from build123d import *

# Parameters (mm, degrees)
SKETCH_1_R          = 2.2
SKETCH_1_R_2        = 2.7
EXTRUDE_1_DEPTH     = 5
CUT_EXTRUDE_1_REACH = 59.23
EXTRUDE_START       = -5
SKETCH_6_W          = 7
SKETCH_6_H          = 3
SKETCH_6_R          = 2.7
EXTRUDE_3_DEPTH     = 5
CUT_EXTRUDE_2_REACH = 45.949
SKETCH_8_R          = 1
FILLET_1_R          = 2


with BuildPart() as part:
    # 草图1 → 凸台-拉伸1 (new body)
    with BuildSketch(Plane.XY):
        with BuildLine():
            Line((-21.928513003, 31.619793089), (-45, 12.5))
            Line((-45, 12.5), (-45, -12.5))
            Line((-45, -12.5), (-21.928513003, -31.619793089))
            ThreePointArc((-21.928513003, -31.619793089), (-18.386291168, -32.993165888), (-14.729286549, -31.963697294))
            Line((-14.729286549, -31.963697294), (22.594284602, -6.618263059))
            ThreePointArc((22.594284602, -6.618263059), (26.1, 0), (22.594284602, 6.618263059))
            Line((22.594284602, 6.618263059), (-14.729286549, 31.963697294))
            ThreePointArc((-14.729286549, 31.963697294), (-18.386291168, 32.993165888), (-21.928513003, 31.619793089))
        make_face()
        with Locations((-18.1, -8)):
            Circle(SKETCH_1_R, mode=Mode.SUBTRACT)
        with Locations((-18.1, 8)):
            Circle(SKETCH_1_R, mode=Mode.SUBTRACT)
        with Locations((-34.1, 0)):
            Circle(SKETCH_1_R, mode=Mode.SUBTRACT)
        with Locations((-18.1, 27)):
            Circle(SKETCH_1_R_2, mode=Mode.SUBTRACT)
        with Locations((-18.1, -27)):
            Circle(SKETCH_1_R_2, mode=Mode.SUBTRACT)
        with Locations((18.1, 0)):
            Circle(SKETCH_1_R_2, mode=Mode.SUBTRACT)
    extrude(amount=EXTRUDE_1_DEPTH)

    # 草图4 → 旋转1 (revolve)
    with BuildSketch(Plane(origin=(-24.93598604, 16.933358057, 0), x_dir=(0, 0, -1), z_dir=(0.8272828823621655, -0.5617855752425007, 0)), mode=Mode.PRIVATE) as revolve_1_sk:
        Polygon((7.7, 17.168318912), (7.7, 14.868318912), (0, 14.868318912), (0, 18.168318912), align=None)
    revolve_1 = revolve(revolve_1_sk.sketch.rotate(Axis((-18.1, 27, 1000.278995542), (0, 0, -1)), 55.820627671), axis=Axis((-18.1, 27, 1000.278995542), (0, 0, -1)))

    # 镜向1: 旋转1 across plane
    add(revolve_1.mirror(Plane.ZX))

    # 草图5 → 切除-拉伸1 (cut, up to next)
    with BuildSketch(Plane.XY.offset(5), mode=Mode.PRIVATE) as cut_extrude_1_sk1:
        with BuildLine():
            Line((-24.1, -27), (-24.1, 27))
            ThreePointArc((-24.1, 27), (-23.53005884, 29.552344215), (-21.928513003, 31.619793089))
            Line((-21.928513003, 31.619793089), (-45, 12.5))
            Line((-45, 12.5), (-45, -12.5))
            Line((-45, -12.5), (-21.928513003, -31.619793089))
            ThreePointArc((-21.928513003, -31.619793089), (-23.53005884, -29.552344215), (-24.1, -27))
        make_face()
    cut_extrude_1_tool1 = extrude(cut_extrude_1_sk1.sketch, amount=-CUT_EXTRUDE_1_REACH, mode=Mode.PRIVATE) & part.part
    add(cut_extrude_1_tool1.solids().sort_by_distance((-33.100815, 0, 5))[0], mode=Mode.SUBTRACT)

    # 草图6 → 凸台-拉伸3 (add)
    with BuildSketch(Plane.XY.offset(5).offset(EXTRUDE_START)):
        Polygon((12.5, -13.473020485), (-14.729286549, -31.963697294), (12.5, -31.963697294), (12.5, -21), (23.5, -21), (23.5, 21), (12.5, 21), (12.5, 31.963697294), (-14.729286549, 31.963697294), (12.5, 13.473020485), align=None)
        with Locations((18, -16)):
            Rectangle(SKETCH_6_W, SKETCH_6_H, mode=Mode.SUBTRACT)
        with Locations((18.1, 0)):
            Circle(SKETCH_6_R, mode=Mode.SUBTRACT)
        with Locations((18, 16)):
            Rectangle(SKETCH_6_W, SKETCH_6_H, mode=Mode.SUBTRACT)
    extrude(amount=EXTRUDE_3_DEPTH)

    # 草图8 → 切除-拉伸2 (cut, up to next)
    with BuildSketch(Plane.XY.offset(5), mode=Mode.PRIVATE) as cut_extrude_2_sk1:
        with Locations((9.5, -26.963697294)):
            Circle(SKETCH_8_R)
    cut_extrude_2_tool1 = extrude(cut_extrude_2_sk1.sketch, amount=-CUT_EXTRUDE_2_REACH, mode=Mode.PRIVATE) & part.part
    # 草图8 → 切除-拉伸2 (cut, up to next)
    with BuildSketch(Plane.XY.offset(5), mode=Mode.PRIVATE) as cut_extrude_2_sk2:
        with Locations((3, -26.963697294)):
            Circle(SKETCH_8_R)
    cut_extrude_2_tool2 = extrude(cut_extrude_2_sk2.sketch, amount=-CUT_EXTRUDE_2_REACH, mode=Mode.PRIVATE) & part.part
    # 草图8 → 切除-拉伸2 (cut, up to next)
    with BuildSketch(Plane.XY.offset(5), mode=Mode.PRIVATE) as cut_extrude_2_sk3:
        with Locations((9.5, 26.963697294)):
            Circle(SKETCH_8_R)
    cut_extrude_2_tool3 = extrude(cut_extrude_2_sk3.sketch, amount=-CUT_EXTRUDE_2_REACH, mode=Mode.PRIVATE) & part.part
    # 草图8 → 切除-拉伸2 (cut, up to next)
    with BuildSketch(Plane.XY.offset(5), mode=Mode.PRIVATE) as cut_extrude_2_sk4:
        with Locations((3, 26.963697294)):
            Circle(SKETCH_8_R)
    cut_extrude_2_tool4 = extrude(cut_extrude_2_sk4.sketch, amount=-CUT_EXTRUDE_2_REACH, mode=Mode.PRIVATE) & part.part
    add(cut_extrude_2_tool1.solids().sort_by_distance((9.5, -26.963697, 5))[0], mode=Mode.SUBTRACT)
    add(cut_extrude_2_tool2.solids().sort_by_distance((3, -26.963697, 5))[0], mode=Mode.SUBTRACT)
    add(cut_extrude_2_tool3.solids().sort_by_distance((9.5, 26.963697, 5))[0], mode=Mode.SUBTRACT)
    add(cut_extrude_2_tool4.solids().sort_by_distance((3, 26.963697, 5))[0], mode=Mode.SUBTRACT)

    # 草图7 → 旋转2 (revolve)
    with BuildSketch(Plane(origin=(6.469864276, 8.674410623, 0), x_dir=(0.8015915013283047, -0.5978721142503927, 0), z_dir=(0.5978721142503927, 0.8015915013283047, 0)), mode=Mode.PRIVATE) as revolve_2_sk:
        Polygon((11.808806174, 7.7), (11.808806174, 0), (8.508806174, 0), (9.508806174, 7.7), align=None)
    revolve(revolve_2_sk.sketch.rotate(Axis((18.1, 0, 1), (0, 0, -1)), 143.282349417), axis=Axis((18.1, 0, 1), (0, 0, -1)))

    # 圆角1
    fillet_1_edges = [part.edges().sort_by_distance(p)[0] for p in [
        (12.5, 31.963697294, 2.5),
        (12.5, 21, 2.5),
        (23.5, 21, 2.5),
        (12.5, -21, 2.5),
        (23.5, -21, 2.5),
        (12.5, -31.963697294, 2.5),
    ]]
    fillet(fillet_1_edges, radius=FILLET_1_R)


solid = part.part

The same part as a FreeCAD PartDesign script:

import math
import FreeCAD as App
import Part
import Sketcher
from FreeCAD import Vector


def edges_at(feature, points):
    """Names of the edges that pass closest to the given points."""
    edges = feature.Shape.Edges
    near = lambda p: min(range(len(edges)), key=lambda i: edges[i].distToShape(Part.Vertex(*p))[0])
    return sorted({f"Edge{near(p) + 1}" for p in points})

doc = App.newDocument("Part")
body = doc.addObject("PartDesign::Body", "Body")

sketch1 = doc.addObject("Sketcher::SketchObject", "Sketch")
body.addObject(sketch1)
sketch1.AttachmentSupport = (doc.XY_Plane, [""])
sketch1.MapMode = "FlatFace"
sketch1.addGeometry([
    Part.LineSegment(Vector(-21.9, 31.6, 0), Vector(-45, 12.5, 0)),
    Part.LineSegment(Vector(-45, 12.5, 0), Vector(-45, -12.5, 0)),
    Part.LineSegment(Vector(-45, -12.5, 0), Vector(-21.9, -31.6, 0)),
    Part.ArcOfCircle(Part.Circle(Vector(-18.1, -27, 0), Vector(0, 0, 1), 6), math.radians(-130), math.radians(-56)),
    Part.LineSegment(Vector(-14.7, -32, 0), Vector(22.6, -6.6, 0)),
    Part.ArcOfCircle(Part.Circle(Vector(18.1, 0, 0), Vector(0, 0, 1), 8), math.radians(-56), math.radians(56)),
    Part.LineSegment(Vector(22.6, 6.6, 0), Vector(-14.7, 32, 0)),
    Part.ArcOfCircle(Part.Circle(Vector(-18.1, 27, 0), Vector(0, 0, 1), 6), math.radians(56), math.radians(130)),
    Part.Circle(Vector(-18.1, -27, 0), Vector(0, 0, 1), 2.7),
    Part.Circle(Vector(-18.1, -8, 0), Vector(0, 0, 1), 2.2),
    Part.Circle(Vector(-34.1, 0, 0), Vector(0, 0, 1), 2.2),
    Part.Circle(Vector(-18.1, 8, 0), Vector(0, 0, 1), 2.2),
    Part.Circle(Vector(-18.1, 27, 0), Vector(0, 0, 1), 2.7),
    Part.Circle(Vector(18.1, 0, 0), Vector(0, 0, 1), 2.7),
], False)
sketch1.addConstraint([
    Sketcher.Constraint("Coincident", 0, 2, 1, 1),
    Sketcher.Constraint("Coincident", 1, 2, 2, 1),
    Sketcher.Constraint("Tangent", 2, 2, 3, 1),
    Sketcher.Constraint("Tangent", 3, 2, 4, 1),
    Sketcher.Constraint("Tangent", 4, 2, 5, 1),
    Sketcher.Constraint("Tangent", 5, 2, 6, 1),
    Sketcher.Constraint("Tangent", 6, 2, 7, 1),
    Sketcher.Constraint("Tangent", 7, 2, 0, 1),
    Sketcher.Constraint("Vertical", 1),
    Sketcher.Constraint("Coincident", 8, 3, 3, 3),
    Sketcher.Constraint("Coincident", 12, 3, 7, 3),
    Sketcher.Constraint("Coincident", 13, 3, 5, 3),
    Sketcher.Constraint("Equal", 3, 7),
    Sketcher.Constraint("Equal", 9, 10),
    Sketcher.Constraint("Equal", 10, 11),
    Sketcher.Constraint("Equal", 8, 12),
    Sketcher.Constraint("Equal", 12, 13),
    Sketcher.Constraint("Symmetric", 3, 3, 7, 3, -1),
    Sketcher.Constraint("Symmetric", 9, 3, 11, 3, -1),
    Sketcher.Constraint("PointOnObject", 5, 3, -1),
    Sketcher.Constraint("PointOnObject", 10, 3, -1),
    Sketcher.Constraint("Vertical", 8, 3, 9, 3),
    Sketcher.Constraint("Vertical", 2, 2, 7, 2),
    Sketcher.Constraint("Radius", 3, 6.0),
    Sketcher.Constraint("Radius", 5, 8.0),
    Sketcher.Constraint("Diameter", 8, 5.4),
    Sketcher.Constraint("Diameter", 9, 4.4),
    Sketcher.Constraint("DistanceY", 1, 2, 1, 1, 25.0),
    Sketcher.Constraint("DistanceY", 3, 3, -1, 1, 27.0),
    Sketcher.Constraint("DistanceY", 9, 3, -1, 1, 8.0),
    Sketcher.Constraint("DistanceX", 0, 2, -1, 1, 45.0),
    Sketcher.Constraint("DistanceX", 10, 3, 9, 3, 16.0),
    Sketcher.Constraint("DistanceX", 3, 3, -1, 1, 18.1),
    Sketcher.Constraint("DistanceX", -1, 1, 5, 3, 18.1),
])
pad1 = doc.addObject("PartDesign::Pad", "Pad")
body.addObject(pad1)
pad1.Profile = sketch1
pad1.Length = 5

sketch2 = doc.addObject("Sketcher::SketchObject", "Sketch001")
body.addObject(sketch2)
sketch2.Placement = App.Placement(Vector(-24.935986, 16.933358, 0), App.Rotation(Vector(0, 0, -1), Vector(0.561785575, 0.827282882, 0), Vector(0.827282882, -0.561785575, 0), "ZXY"))
sketch2.addGeometry([
    Part.LineSegment(Vector(7.7, 14.9, 0), Vector(7.7, 17.2, 0)),
    Part.LineSegment(Vector(7.7, 17.2, 0), Vector(0, 18.2, 0)),
    Part.LineSegment(Vector(0, 18.2, 0), Vector(0, 14.9, 0)),
    Part.LineSegment(Vector(0, 14.9, 0), Vector(7.7, 14.9, 0)),
], False)
sketch2.addGeometry(Part.LineSegment(Vector(0, 12.2, 0), Vector(7.7, 12.2, 0)), True)
sketch2.addConstraint([
    Sketcher.Constraint("Coincident", 0, 2, 1, 1),
    Sketcher.Constraint("Coincident", 1, 2, 2, 1),
    Sketcher.Constraint("Coincident", 2, 2, 3, 1),
    Sketcher.Constraint("Coincident", 3, 2, 0, 1),
    Sketcher.Constraint("Vertical", 0),
    Sketcher.Constraint("Vertical", 2),
    Sketcher.Constraint("Horizontal", 3),
    Sketcher.Constraint("Horizontal", 4),
    Sketcher.Constraint("PointOnObject", 1, 2, -2),
    Sketcher.Constraint("PointOnObject", 4, 1, -2),
    Sketcher.Constraint("Vertical", 3, 2, 4, 2),
    Sketcher.Constraint("DistanceX", 3, 1, 3, 2, 7.7),
    Sketcher.Constraint("DistanceY", 0, 1, 0, 2, 2.3),
    Sketcher.Constraint("DistanceY", 2, 2, 2, 1, 3.3),
    Sketcher.Constraint("DistanceY", 4, 1, 1, 2, 6.0),
    Sketcher.Constraint("DistanceY", -1, 1, 0, 2, 17.168319),
])
revolution = doc.addObject("PartDesign::Revolution", "Revolution")
body.addObject(revolution)
revolution.Profile = sketch2
revolution.ReferenceAxis = (sketch2, ["Axis0"])
revolution.Angle = 360
doc.recompute()

mirrored = doc.addObject("PartDesign::Mirrored", "Mirrored")
body.addObject(mirrored)
mirrored.Originals = [revolution]
mirrored.MirrorPlane = (doc.XZ_Plane, [""])
body.Tip = mirrored

sketch3 = doc.addObject("Sketcher::SketchObject", "Sketch002")
body.addObject(sketch3)
sketch3.AttachmentSupport = (doc.XY_Plane, [""])
sketch3.MapMode = "FlatFace"
sketch3.AttachmentOffset = App.Placement(Vector(0, 0, 5), App.Rotation())
sketch3.addGeometry([
    Part.LineSegment(Vector(-24, -27, 0), Vector(-24, 27, 0)),
    Part.ArcOfCircle(Part.Circle(Vector(-18, 27, 0), Vector(0, 0, 1), 6), math.radians(130), math.radians(180)),
    Part.LineSegment(Vector(-22, 32, 0), Vector(-45, 12, 0)),
    Part.LineSegment(Vector(-45, 12, 0), Vector(-45, -12, 0)),
    Part.LineSegment(Vector(-45, -12, 0), Vector(-22, -32, 0)),
    Part.ArcOfCircle(Part.Circle(Vector(-18, -27, 0), Vector(0, 0, 1), 6), math.radians(-180), math.radians(-130)),
], False)
sketch3.addConstraint([
    Sketcher.Constraint("Tangent", 0, 2, 1, 2),
    Sketcher.Constraint("Tangent", 1, 1, 2, 1),
    Sketcher.Constraint("Coincident", 2, 2, 3, 1),
    Sketcher.Constraint("Coincident", 3, 2, 4, 1),
    Sketcher.Constraint("Tangent", 4, 2, 5, 2),
    Sketcher.Constraint("Tangent", 5, 1, 0, 1),
    Sketcher.Constraint("Vertical", 0),
    Sketcher.Constraint("Vertical", 3),
    Sketcher.Constraint("Equal", 1, 5),
    Sketcher.Constraint("Symmetric", 1, 1, 4, 2, -1),
    Sketcher.Constraint("Radius", 1, 6.0),
    Sketcher.Constraint("DistanceY", 0, 1, 0, 2, 54.0),
    Sketcher.Constraint("DistanceY", 3, 2, 3, 1, 25.0),
    Sketcher.Constraint("DistanceX", 2, 2, -1, 1, 45.0),
    Sketcher.Constraint("DistanceX", 1, 3, -1, 1, 18.1),
])
pocket1 = doc.addObject("PartDesign::Pocket", "Pocket")
body.addObject(pocket1)
pocket1.Profile = sketch3
pocket1.Length = 5

sketch4 = doc.addObject("Sketcher::SketchObject", "Sketch003")
body.addObject(sketch4)
sketch4.AttachmentSupport = (doc.XY_Plane, [""])
sketch4.MapMode = "FlatFace"
sketch4.addGeometry([
    Part.LineSegment(Vector(12.5, -13.5, 0), Vector(-14.7, -32, 0)),
    Part.LineSegment(Vector(-14.7, -32, 0), Vector(12.5, -32, 0)),
    Part.LineSegment(Vector(12.5, -32, 0), Vector(12.5, -21, 0)),
    Part.LineSegment(Vector(12.5, -21, 0), Vector(23.5, -21, 0)),
    Part.LineSegment(Vector(23.5, -21, 0), Vector(23.5, 21, 0)),
    Part.LineSegment(Vector(23.5, 21, 0), Vector(12.5, 21, 0)),
    Part.LineSegment(Vector(12.5, 21, 0), Vector(12.5, 32, 0)),
    Part.LineSegment(Vector(12.5, 32, 0), Vector(-14.7, 32, 0)),
    Part.LineSegment(Vector(-14.7, 32, 0), Vector(12.5, 13.5, 0)),
    Part.LineSegment(Vector(12.5, 13.5, 0), Vector(12.5, -13.5, 0)),
    Part.LineSegment(Vector(21.5, -17.5, 0), Vector(14.5, -17.5, 0)),
    Part.LineSegment(Vector(14.5, -17.5, 0), Vector(14.5, -14.5, 0)),
    Part.LineSegment(Vector(14.5, -14.5, 0), Vector(21.5, -14.5, 0)),
    Part.LineSegment(Vector(21.5, -14.5, 0), Vector(21.5, -17.5, 0)),
    Part.Circle(Vector(18.1, 0, 0), Vector(0, 0, 1), 2.7),
    Part.LineSegment(Vector(21.5, 14.5, 0), Vector(14.5, 14.5, 0)),
    Part.LineSegment(Vector(14.5, 14.5, 0), Vector(14.5, 17.5, 0)),
    Part.LineSegment(Vector(14.5, 17.5, 0), Vector(21.5, 17.5, 0)),
    Part.LineSegment(Vector(21.5, 17.5, 0), Vector(21.5, 14.5, 0)),
], False)
sketch4.addConstraint([
    Sketcher.Constraint("Coincident", 0, 2, 1, 1),
    Sketcher.Constraint("Coincident", 1, 2, 2, 1),
    Sketcher.Constraint("Coincident", 2, 2, 3, 1),
    Sketcher.Constraint("Coincident", 3, 2, 4, 1),
    Sketcher.Constraint("Coincident", 4, 2, 5, 1),
    Sketcher.Constraint("Coincident", 5, 2, 6, 1),
    Sketcher.Constraint("Coincident", 6, 2, 7, 1),
    Sketcher.Constraint("Coincident", 7, 2, 8, 1),
    Sketcher.Constraint("Coincident", 8, 2, 9, 1),
    Sketcher.Constraint("Coincident", 9, 2, 0, 1),
    Sketcher.Constraint("Coincident", 10, 2, 11, 1),
    Sketcher.Constraint("Coincident", 11, 2, 12, 1),
    Sketcher.Constraint("Coincident", 12, 2, 13, 1),
    Sketcher.Constraint("Coincident", 13, 2, 10, 1),
    Sketcher.Constraint("Coincident", 15, 2, 16, 1),
    Sketcher.Constraint("Coincident", 16, 2, 17, 1),
    Sketcher.Constraint("Coincident", 17, 2, 18, 1),
    Sketcher.Constraint("Coincident", 18, 2, 15, 1),
    Sketcher.Constraint("Horizontal", 1),
    Sketcher.Constraint("Vertical", 2),
    Sketcher.Constraint("Horizontal", 3),
    Sketcher.Constraint("Vertical", 4),
    Sketcher.Constraint("Horizontal", 5),
    Sketcher.Constraint("Vertical", 6),
    Sketcher.Constraint("Horizontal", 7),
    Sketcher.Constraint("Vertical", 9),
    Sketcher.Constraint("Horizontal", 10),
    Sketcher.Constraint("Vertical", 11),
    Sketcher.Constraint("Horizontal", 12),
    Sketcher.Constraint("Vertical", 13),
    Sketcher.Constraint("Horizontal", 15),
    Sketcher.Constraint("Vertical", 16),
    Sketcher.Constraint("Horizontal", 17),
    Sketcher.Constraint("Vertical", 18),
    Sketcher.Constraint("Symmetric", 2, 2, 5, 2, -1),
    Sketcher.Constraint("Symmetric", 0, 2, 7, 2, -1),
    Sketcher.Constraint("Symmetric", 11, 2, 15, 2, -1),
    Sketcher.Constraint("Symmetric", 13, 2, 17, 2, -1),
    Sketcher.Constraint("PointOnObject", 14, 3, -1),
    Sketcher.Constraint("Vertical", 6, 2, 8, 2),
    Sketcher.Constraint("Equal", 0, 8),
    Sketcher.Constraint("Diameter", 14, 5.4),
    Sketcher.Constraint("DistanceX", 3, 1, 3, 2, 11.0),
    Sketcher.Constraint("DistanceX", 10, 2, 10, 1, 7.0),
    Sketcher.Constraint("DistanceY", 4, 1, 4, 2, 42.0),
    Sketcher.Constraint("DistanceY", 11, 1, 11, 2, 3.0),
    Sketcher.Constraint("DistanceX", 2, 2, 10, 2, 2.0),
    Sketcher.Constraint("DistanceX", -1, 1, 14, 3, 18.1),
    Sketcher.Constraint("DistanceX", -1, 1, 1, 2, 12.5),
    Sketcher.Constraint("DistanceY", 10, 2, -1, 1, 17.5),
    Sketcher.Constraint("DistanceY", 9, 2, 9, 1, 26.946041),
    Sketcher.Constraint("Distance", 0, 32.914118),
    Sketcher.Constraint("DistanceX", 1, 1, 1, 2, 27.229287),
])
pad2 = doc.addObject("PartDesign::Pad", "Pad001")
body.addObject(pad2)
pad2.Profile = sketch4
pad2.Length = 5

sketch5 = doc.addObject("Sketcher::SketchObject", "Sketch004")
body.addObject(sketch5)
sketch5.AttachmentSupport = (doc.XY_Plane, [""])
sketch5.MapMode = "FlatFace"
sketch5.AttachmentOffset = App.Placement(Vector(0, 0, 5), App.Rotation())
sketch5.addGeometry(Part.Circle(Vector(9.5, -27, 0), Vector(0, 0, 1), 1), False)
sketch5.addConstraint([
    Sketcher.Constraint("Diameter", 0, 2.0),
    Sketcher.Constraint("DistanceX", -1, 1, 0, 3, 9.5),
    Sketcher.Constraint("DistanceY", 0, 3, -1, 1, 26.963697),
])
pocket2 = doc.addObject("PartDesign::Pocket", "Pocket001")
body.addObject(pocket2)
pocket2.Profile = sketch5
pocket2.Type = "UpToFirst"

sketch6 = doc.addObject("Sketcher::SketchObject", "Sketch005")
body.addObject(sketch6)
sketch6.AttachmentSupport = (doc.XY_Plane, [""])
sketch6.MapMode = "FlatFace"
sketch6.AttachmentOffset = App.Placement(Vector(0, 0, 5), App.Rotation())
sketch6.addGeometry(Part.Circle(Vector(3, -27, 0), Vector(0, 0, 1), 1), False)
sketch6.addConstraint([
    Sketcher.Constraint("Diameter", 0, 2.0),
    Sketcher.Constraint("DistanceX", -1, 1, 0, 3, 3.0),
    Sketcher.Constraint("DistanceY", 0, 3, -1, 1, 26.963697),
])
pocket3 = doc.addObject("PartDesign::Pocket", "Pocket002")
body.addObject(pocket3)
pocket3.Profile = sketch6
pocket3.Type = "UpToFirst"

sketch7 = doc.addObject("Sketcher::SketchObject", "Sketch006")
body.addObject(sketch7)
sketch7.AttachmentSupport = (doc.XY_Plane, [""])
sketch7.MapMode = "FlatFace"
sketch7.AttachmentOffset = App.Placement(Vector(0, 0, 5), App.Rotation())
sketch7.addGeometry(Part.Circle(Vector(9.5, 27, 0), Vector(0, 0, 1), 1), False)
sketch7.addConstraint([
    Sketcher.Constraint("Diameter", 0, 2.0),
    Sketcher.Constraint("DistanceX", -1, 1, 0, 3, 9.5),
    Sketcher.Constraint("DistanceY", -1, 1, 0, 3, 26.963697),
])
pocket4 = doc.addObject("PartDesign::Pocket", "Pocket003")
body.addObject(pocket4)
pocket4.Profile = sketch7
pocket4.Type = "UpToFirst"

sketch8 = doc.addObject("Sketcher::SketchObject", "Sketch007")
body.addObject(sketch8)
sketch8.AttachmentSupport = (doc.XY_Plane, [""])
sketch8.MapMode = "FlatFace"
sketch8.AttachmentOffset = App.Placement(Vector(0, 0, 5), App.Rotation())
sketch8.addGeometry(Part.Circle(Vector(3, 27, 0), Vector(0, 0, 1), 1), False)
sketch8.addConstraint([
    Sketcher.Constraint("Diameter", 0, 2.0),
    Sketcher.Constraint("DistanceX", -1, 1, 0, 3, 3.0),
    Sketcher.Constraint("DistanceY", -1, 1, 0, 3, 26.963697),
])
pocket5 = doc.addObject("PartDesign::Pocket", "Pocket004")
body.addObject(pocket5)
pocket5.Profile = sketch8
pocket5.Type = "UpToFirst"

sketch9 = doc.addObject("Sketcher::SketchObject", "Sketch008")
body.addObject(sketch9)
sketch9.Placement = App.Placement(Vector(6.469864, 8.674411, 0), App.Rotation(Vector(0.801591501, -0.597872114, 0), Vector(0, 0, -0.999999999), Vector(0.597872114, 0.801591501, 0), "ZXY"))
sketch9.addGeometry([
    Part.LineSegment(Vector(11.8, 0, 0), Vector(11.8, 7.7, 0)),
    Part.LineSegment(Vector(11.8, 7.7, 0), Vector(9.5, 7.7, 0)),
    Part.LineSegment(Vector(9.5, 7.7, 0), Vector(8.5, 0, 0)),
    Part.LineSegment(Vector(8.5, 0, 0), Vector(11.8, 0, 0)),
], False)
sketch9.addGeometry(Part.LineSegment(Vector(14.5, 0, 0), Vector(14.5, 7.7, 0)), True)
sketch9.addConstraint([
    Sketcher.Constraint("Coincident", 0, 2, 1, 1),
    Sketcher.Constraint("Coincident", 1, 2, 2, 1),
    Sketcher.Constraint("Coincident", 2, 2, 3, 1),
    Sketcher.Constraint("Coincident", 3, 2, 0, 1),
    Sketcher.Constraint("Vertical", 0),
    Sketcher.Constraint("Horizontal", 1),
    Sketcher.Constraint("Horizontal", 3),
    Sketcher.Constraint("Vertical", 4),
    Sketcher.Constraint("PointOnObject", 2, 2, -1),
    Sketcher.Constraint("PointOnObject", 4, 1, -1),
    Sketcher.Constraint("Horizontal", 1, 2, 4, 2),
    Sketcher.Constraint("DistanceX", 1, 2, 1, 1, 2.3),
    Sketcher.Constraint("DistanceX", 3, 1, 3, 2, 3.3),
    Sketcher.Constraint("DistanceY", 0, 1, 0, 2, 7.7),
    Sketcher.Constraint("DistanceX", 2, 2, 4, 1, 6.0),
    Sketcher.Constraint("DistanceX", -1, 1, 0, 2, 11.808806),
])
revolution2 = doc.addObject("PartDesign::Revolution", "Revolution001")
body.addObject(revolution2)
revolution2.Profile = sketch9
revolution2.ReferenceAxis = (sketch9, ["Axis0"])
revolution2.Angle = 360
doc.recompute()

fillet = doc.addObject("PartDesign::Fillet", "Fillet")
body.addObject(fillet)
fillet.Base = (revolution2, edges_at(revolution2, [
    (12.5, 31.964, 2.5),
    (12.5, 21, 2.5),
    (23.5, 21, 2.5),
    (12.5, -21, 2.5),
    (23.5, -21, 2.5),
    (12.5, -31.964, 2.5),
]))
fillet.Radius = 2

doc.recompute()
